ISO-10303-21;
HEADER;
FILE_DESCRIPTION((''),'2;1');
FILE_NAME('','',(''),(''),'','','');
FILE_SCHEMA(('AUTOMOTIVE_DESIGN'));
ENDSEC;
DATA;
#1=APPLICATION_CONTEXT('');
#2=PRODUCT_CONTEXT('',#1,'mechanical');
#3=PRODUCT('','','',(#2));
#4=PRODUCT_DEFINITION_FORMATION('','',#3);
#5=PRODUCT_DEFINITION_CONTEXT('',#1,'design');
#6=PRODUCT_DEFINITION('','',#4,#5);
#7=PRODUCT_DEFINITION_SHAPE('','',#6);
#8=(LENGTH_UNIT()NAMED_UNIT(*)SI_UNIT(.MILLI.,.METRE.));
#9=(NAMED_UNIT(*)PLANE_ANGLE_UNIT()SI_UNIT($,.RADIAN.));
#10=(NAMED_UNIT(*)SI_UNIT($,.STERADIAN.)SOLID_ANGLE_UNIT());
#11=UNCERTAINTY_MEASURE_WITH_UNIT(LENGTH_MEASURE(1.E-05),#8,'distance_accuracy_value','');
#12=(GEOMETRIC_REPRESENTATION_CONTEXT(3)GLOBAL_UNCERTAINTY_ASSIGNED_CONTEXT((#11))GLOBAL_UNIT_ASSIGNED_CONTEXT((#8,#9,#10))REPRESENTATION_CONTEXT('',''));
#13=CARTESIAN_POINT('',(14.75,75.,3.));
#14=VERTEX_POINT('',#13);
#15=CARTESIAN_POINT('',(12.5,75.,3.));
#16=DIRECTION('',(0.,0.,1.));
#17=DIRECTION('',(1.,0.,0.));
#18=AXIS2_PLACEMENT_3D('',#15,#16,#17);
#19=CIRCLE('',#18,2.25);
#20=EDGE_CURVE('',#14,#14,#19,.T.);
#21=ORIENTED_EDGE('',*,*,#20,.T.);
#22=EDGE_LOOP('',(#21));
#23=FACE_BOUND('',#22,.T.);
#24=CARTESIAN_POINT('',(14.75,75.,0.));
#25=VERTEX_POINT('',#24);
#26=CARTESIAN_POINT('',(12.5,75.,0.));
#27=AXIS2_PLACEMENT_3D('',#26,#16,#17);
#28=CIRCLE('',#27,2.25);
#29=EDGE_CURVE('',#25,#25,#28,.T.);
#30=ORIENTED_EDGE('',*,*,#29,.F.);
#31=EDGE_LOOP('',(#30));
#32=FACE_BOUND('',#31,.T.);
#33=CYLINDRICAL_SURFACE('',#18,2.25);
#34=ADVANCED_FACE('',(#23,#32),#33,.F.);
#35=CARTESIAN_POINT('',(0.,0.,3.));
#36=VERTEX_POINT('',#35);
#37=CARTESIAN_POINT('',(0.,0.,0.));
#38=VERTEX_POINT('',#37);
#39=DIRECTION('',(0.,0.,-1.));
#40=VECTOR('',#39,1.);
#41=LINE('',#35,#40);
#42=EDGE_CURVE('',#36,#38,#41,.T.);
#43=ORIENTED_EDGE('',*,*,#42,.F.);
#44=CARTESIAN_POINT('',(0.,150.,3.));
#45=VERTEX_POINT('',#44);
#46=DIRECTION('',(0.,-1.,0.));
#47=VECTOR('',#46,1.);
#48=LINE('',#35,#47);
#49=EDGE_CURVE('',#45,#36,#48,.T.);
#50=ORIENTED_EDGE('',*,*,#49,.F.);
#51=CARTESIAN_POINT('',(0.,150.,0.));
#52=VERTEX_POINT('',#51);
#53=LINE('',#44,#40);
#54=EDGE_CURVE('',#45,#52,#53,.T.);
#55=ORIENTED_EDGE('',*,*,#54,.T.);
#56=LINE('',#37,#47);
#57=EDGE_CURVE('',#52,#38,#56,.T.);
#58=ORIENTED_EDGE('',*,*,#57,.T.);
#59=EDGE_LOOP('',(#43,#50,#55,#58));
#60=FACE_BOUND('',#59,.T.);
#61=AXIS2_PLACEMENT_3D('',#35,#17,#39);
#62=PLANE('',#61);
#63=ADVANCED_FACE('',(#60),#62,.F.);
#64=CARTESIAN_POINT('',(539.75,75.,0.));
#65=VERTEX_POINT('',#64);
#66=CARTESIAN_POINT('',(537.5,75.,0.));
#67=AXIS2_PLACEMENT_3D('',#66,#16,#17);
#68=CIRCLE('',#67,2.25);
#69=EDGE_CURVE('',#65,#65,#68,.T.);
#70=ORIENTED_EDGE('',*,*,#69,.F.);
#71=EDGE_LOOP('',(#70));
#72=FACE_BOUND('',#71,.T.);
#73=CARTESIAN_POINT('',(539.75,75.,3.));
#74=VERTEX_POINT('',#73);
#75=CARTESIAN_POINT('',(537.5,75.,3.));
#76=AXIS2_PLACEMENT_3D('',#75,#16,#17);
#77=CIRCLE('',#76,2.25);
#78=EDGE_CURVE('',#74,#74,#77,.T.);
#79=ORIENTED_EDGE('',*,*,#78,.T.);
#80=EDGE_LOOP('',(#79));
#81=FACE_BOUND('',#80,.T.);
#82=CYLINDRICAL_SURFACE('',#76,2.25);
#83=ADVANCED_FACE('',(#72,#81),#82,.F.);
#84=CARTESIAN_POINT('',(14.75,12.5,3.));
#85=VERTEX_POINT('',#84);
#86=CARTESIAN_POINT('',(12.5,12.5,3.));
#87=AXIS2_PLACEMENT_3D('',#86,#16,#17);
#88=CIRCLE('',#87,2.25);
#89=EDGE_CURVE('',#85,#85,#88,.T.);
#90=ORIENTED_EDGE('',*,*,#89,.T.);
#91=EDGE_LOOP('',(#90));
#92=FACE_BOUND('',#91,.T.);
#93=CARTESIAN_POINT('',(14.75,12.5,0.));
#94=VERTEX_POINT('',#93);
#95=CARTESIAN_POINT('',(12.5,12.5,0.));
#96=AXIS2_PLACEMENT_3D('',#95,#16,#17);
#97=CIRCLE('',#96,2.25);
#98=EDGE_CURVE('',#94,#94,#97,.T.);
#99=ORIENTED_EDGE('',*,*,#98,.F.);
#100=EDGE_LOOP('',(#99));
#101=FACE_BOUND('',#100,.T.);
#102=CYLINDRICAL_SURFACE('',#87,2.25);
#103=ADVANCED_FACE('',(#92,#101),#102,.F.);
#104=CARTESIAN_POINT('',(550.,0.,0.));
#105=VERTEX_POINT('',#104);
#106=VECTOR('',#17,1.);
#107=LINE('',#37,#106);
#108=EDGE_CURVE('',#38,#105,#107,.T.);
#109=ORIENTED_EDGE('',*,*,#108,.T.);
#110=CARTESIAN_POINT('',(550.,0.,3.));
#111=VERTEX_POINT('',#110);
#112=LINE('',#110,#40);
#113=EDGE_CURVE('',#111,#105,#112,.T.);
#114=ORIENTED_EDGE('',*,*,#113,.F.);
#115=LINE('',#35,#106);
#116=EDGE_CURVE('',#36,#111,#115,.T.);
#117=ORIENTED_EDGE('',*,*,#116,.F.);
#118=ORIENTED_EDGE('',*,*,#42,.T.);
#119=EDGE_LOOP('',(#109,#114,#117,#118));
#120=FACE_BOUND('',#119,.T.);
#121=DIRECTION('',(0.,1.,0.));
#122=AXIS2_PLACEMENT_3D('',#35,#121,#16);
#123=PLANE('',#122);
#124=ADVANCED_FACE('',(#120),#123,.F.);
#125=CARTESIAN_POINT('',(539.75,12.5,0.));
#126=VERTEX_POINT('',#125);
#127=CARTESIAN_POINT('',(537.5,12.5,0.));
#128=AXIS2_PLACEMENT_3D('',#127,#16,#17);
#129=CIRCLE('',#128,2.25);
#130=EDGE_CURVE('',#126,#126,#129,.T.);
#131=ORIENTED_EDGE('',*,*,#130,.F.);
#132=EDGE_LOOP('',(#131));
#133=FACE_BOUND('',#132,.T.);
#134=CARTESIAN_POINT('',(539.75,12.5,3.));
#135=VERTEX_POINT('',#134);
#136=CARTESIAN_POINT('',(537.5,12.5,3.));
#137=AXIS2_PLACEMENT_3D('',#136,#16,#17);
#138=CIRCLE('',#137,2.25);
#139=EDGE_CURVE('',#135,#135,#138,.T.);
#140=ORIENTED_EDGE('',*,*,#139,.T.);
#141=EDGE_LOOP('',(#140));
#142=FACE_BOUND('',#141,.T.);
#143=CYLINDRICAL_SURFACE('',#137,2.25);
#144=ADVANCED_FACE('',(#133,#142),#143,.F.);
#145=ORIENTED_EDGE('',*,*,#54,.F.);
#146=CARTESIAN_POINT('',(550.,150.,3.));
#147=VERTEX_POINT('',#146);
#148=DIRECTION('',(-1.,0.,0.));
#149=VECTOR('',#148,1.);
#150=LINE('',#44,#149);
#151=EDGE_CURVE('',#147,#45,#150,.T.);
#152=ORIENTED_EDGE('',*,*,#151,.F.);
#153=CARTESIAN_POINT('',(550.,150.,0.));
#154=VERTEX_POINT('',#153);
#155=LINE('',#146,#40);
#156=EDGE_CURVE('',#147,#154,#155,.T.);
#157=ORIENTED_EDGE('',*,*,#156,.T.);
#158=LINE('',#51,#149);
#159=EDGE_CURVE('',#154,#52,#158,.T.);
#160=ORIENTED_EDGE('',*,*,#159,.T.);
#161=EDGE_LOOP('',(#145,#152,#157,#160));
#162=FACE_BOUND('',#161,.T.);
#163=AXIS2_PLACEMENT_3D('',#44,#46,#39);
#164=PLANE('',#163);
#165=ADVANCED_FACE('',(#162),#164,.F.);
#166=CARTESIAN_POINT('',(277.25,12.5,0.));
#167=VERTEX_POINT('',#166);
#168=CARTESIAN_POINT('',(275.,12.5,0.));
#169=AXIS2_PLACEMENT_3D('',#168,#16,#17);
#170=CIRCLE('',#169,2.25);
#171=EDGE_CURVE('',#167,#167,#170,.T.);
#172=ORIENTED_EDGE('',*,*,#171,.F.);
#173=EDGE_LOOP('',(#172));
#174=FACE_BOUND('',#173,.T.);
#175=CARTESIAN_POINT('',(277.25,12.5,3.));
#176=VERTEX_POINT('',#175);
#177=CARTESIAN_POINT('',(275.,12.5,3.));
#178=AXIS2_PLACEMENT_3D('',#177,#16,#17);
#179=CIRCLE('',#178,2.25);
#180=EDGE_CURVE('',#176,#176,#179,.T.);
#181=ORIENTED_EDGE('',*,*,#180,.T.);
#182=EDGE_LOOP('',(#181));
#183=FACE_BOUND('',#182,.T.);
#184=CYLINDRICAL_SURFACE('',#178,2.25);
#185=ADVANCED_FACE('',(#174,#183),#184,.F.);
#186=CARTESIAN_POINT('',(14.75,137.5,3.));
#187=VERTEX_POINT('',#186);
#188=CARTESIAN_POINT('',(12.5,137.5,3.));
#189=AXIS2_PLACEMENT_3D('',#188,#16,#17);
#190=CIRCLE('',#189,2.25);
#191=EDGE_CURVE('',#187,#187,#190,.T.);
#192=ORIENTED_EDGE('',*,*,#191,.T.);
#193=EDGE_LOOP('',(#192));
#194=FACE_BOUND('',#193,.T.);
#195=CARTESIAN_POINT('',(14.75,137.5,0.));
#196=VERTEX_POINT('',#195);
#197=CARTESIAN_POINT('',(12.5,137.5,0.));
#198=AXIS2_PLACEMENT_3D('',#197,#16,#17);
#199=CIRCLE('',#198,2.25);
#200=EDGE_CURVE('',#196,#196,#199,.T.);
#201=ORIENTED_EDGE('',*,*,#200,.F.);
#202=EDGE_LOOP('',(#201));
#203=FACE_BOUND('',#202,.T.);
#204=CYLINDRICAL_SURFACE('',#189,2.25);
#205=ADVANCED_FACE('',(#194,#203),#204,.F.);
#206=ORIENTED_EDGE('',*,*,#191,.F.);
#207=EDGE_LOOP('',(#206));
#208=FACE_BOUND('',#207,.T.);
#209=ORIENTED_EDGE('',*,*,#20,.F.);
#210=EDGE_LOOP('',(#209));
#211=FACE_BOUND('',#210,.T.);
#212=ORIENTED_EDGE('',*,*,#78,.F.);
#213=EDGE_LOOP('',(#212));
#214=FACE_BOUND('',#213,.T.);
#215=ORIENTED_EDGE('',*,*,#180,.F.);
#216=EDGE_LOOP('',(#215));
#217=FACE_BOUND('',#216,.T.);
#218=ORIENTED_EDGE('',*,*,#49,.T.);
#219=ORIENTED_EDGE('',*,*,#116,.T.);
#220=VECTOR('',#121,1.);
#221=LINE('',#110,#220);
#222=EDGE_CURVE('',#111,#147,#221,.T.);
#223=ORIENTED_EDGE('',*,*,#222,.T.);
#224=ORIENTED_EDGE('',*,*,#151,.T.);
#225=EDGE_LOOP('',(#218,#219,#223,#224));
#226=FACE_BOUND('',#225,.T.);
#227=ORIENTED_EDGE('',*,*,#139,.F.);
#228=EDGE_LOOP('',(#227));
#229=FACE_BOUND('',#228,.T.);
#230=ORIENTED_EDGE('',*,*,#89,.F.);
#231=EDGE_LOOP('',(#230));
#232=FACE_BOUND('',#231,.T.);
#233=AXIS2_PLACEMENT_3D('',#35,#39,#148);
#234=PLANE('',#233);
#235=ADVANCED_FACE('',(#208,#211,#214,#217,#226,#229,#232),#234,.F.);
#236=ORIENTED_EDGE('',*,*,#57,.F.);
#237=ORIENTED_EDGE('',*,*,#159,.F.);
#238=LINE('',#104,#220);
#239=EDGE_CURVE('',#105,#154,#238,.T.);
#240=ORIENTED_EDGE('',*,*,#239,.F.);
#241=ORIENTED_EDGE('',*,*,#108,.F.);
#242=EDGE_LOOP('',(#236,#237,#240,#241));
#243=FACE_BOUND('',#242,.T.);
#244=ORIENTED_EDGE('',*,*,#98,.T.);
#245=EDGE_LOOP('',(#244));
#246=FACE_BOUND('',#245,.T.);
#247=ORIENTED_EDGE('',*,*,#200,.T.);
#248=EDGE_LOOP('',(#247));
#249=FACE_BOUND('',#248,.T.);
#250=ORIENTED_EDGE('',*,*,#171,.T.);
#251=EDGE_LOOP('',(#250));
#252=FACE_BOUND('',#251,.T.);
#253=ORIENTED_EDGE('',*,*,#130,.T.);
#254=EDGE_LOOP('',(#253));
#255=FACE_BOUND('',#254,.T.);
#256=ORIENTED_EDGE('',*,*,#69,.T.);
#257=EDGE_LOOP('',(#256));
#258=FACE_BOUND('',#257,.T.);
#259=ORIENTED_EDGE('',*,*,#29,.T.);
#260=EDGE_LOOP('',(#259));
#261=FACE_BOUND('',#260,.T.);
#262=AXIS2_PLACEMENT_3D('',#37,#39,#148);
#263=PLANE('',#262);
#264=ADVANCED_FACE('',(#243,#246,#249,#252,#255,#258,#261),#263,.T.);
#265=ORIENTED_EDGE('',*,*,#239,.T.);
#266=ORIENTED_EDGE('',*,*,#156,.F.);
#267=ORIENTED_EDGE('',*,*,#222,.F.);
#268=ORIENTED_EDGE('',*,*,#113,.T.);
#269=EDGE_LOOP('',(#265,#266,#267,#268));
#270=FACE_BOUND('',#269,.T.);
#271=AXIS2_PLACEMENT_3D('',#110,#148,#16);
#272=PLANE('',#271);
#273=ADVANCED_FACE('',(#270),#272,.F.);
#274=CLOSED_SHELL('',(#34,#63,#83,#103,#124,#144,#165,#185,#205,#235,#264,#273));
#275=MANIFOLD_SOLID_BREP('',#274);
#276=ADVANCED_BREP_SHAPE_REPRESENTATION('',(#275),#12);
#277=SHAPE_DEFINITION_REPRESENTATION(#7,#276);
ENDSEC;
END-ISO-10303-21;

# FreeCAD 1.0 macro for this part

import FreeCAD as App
import Part
import Sketcher

V = App.Vector
Q = App.Units.Quantity

doc = App.newDocument("Part")
body = doc.addObject("PartDesign::Body", "Body")

# Sketch on XY plane
sketch1 = body.newObject("Sketcher::SketchObject", "Sketch")
sketch1.AttachmentSupport = (doc.getObject("XY_Plane"), [""])
sketch1.MapMode = "FlatFace"
sketch1.addGeometry([
    Part.LineSegment(V(0, 150, 0), V(0, 0, 0)),
    Part.LineSegment(V(0, 0, 0), V(550, 0, 0)),
    Part.LineSegment(V(550, 0, 0), V(550, 150, 0)),
    Part.LineSegment(V(550, 150, 0), V(0, 150, 0)),
], False)
sketch1.addConstraint([
    Sketcher.Constraint("Coincident", 0, 2, 1, 1),
    Sketcher.Constraint("Coincident", 1, 2, 2, 1),
    Sketcher.Constraint("Coincident", 2, 2, 3, 1),
    Sketcher.Constraint("Coincident", 3, 2, 0, 1),
    Sketcher.Constraint("Vertical", 0),
    Sketcher.Constraint("Horizontal", 1),
    Sketcher.Constraint("Vertical", 2),
    Sketcher.Constraint("Horizontal", 3),
    Sketcher.Constraint("Coincident", 0, 2, -1, 1),
    Sketcher.Constraint("DistanceX", 1, 1, 1, 2, Q("550 mm")),
    Sketcher.Constraint("DistanceY", 0, 2, 0, 1, Q("150 mm")),
])
pad1 = body.newObject("PartDesign::Pad", "Pad")
pad1.Profile = sketch1
pad1.Length = 3

# Sketch on XY plane
sketch2 = body.newObject("Sketcher::SketchObject", "Sketch001")
sketch2.AttachmentSupport = (doc.getObject("XY_Plane"), [""])
sketch2.MapMode = "FlatFace"
sketch2.AttachmentOffset = App.Placement(V(0, 0, 3), App.Rotation())
sketch2.addGeometry([
    Part.Circle(V(12.5, 75, 0), V(0, 0, 1), 2.2),  # 0
    Part.Circle(V(12.5, 137.5, 0), V(0, 0, 1), 2.2),  # 1
    Part.Circle(V(12.5, 12.5, 0), V(0, 0, 1), 2.2),  # 2
    Part.Circle(V(275, 12.5, 0), V(0, 0, 1), 2.2),  # 3
    Part.Circle(V(537.5, 12.5, 0), V(0, 0, 1), 2.2),  # 4
    Part.Circle(V(537.5, 75, 0), V(0, 0, 1), 2.2),  # 5
    Part.Circle(V(537.5, 237.5, 0), V(0, 0, 1), 2.2),  # 6
], False)
sketch2.addConstraint([
    Sketcher.Constraint("Equal", 0, 1),
    Sketcher.Constraint("Equal", 1, 2),
    Sketcher.Constraint("Equal", 2, 3),
    Sketcher.Constraint("Equal", 3, 4),
    Sketcher.Constraint("Equal", 4, 5),
    Sketcher.Constraint("Equal", 5, 6),
    Sketcher.Constraint("Horizontal", 2, 3, 3, 3),
    Sketcher.Constraint("Horizontal", 3, 3, 4, 3),
    Sketcher.Constraint("Horizontal", 0, 3, 5, 3),
    Sketcher.Constraint("Vertical", 0, 3, 1, 3),
    Sketcher.Constraint("Vertical", 1, 3, 2, 3),
    Sketcher.Constraint("Vertical", 4, 3, 5, 3),
    Sketcher.Constraint("Vertical", 5, 3, 6, 3),
    Sketcher.Constraint("Diameter", 0, Q("4.5 mm")),
    Sketcher.Constraint("DistanceY", -1, 1, 0, 3, Q("75 mm")),
    Sketcher.Constraint("DistanceX", -1, 1, 3, 3, Q("275 mm")),
    Sketcher.Constraint("DistanceY", 2, 3, 1, 3, Q("125 mm")),
    Sketcher.Constraint("DistanceX", 2, 3, 4, 3, Q("525 mm")),
    Sketcher.Constraint("DistanceY", 4, 3, 6, 3, Q("225 mm")),
    Sketcher.Constraint("DistanceX", -1, 1, 0, 3, Q("12.5 mm")),
    Sketcher.Constraint("DistanceY", -1, 1, 1, 3, Q("137.5 mm")),
])
doc.recompute()
hole = body.newObject("PartDesign::Hole", "Hole")
hole.Profile = sketch2
hole.ThreadType = "None"
hole.Diameter = 4.5
hole.DepthType = "ThroughAll"

doc.recompute()
